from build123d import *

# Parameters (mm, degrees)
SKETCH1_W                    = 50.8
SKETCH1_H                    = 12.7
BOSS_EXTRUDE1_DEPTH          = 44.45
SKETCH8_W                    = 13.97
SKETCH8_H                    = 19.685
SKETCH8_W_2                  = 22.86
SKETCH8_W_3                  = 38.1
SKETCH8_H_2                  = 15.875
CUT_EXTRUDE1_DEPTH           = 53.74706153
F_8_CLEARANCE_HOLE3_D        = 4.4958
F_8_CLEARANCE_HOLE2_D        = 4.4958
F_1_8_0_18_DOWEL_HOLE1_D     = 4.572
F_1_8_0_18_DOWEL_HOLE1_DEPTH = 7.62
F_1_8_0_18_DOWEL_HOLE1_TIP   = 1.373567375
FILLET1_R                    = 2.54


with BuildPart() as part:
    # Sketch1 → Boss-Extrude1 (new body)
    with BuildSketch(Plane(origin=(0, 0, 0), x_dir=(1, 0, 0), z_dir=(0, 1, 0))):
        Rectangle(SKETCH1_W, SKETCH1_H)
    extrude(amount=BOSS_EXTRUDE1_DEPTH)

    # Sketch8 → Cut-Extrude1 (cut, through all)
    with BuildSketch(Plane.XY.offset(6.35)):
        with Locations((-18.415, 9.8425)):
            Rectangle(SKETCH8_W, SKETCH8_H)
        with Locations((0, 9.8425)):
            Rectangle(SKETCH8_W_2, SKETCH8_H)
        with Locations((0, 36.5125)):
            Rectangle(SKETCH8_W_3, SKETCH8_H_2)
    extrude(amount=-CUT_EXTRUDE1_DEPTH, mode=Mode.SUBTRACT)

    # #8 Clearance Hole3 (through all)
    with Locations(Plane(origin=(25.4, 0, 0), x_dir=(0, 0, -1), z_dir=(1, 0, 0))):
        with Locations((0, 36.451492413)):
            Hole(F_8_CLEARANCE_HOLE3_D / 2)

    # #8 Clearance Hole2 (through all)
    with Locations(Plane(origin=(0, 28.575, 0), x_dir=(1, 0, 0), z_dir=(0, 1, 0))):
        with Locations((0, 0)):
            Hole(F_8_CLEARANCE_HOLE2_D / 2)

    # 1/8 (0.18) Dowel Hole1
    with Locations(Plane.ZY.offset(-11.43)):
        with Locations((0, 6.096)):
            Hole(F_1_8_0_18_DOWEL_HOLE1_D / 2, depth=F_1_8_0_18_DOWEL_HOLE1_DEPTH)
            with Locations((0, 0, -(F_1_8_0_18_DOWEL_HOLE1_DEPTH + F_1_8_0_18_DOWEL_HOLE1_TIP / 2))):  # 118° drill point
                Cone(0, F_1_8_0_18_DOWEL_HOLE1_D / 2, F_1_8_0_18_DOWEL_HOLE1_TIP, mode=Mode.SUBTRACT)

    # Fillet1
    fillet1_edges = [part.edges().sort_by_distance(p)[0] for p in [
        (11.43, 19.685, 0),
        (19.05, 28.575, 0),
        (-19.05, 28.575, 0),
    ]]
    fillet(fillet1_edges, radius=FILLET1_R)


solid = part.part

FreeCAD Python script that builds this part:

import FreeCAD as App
import Part
import Sketcher
Q = App.Units.Quantity


def edges_at(feature, points):
    """Names of the edges that pass closest to the given points."""
    edges = feature.Shape.Edges
    near = lambda p: min(range(len(edges)), key=lambda i: edges[i].distToShape(Part.Vertex(*p))[0])
    return sorted({f"Edge{near(p) + 1}" for p in points})

doc = App.newDocument("Part")
body = doc.addObject("PartDesign::Body", "Body")

# Sketch on XZ plane
sketch1 = body.newObject("Sketcher::SketchObject", "Sketch")
sketch1.AttachmentSupport = (doc.getObject("XZ_Plane"), [""])
sketch1.MapMode = "FlatFace"
sketch1.addGeometry([
    Part.LineSegment(App.Vector(-25.4, -6.35, 0), App.Vector(-25.4, 6.35, 0)),
    Part.LineSegment(App.Vector(-25.4, 6.35, 0), App.Vector(25.4, 6.35, 0)),
    Part.LineSegment(App.Vector(25.4, 6.35, 0), App.Vector(25.4, -6.35, 0)),
    Part.LineSegment(App.Vector(25.4, -6.35, 0), App.Vector(-25.4, -6.35, 0)),
], False)
sketch1.addConstraint([
    Sketcher.Constraint("Coincident", 0, 2, 1, 1),
    Sketcher.Constraint("Coincident", 1, 2, 2, 1),
    Sketcher.Constraint("Coincident", 2, 2, 3, 1),
    Sketcher.Constraint("Coincident", 3, 2, 0, 1),
    Sketcher.Constraint("Vertical", 0),
    Sketcher.Constraint("Horizontal", 1),
    Sketcher.Constraint("Vertical", 2),
    Sketcher.Constraint("Horizontal", 3),
    Sketcher.Constraint("Symmetric", 0, 2, 2, 2, -1, 1),
    Sketcher.Constraint("DistanceX", 1, 1, 1, 2, Q("2 in")),
    Sketcher.Constraint("DistanceY", 0, 1, 0, 2, Q("0.5 in")),
])
pad1 = body.newObject("PartDesign::Pad", "Pad")
pad1.Profile = sketch1
pad1.Length = Q("1.75 in")
pad1.Reversed = True

# Sketch on XY plane
sketch2 = body.newObject("Sketcher::SketchObject", "Sketch001")
sketch2.AttachmentSupport = (doc.getObject("XY_Plane"), [""])
sketch2.MapMode = "FlatFace"
sketch2.AttachmentOffset = App.Placement(App.Vector(0, 0, 0.25 * 25.4), App.Rotation())
sketch2.addGeometry([
    Part.LineSegment(App.Vector(-25.4, 19.685, 0), App.Vector(-25.4, 0, 0)),  # 0
    Part.LineSegment(App.Vector(-25.4, 0, 0), App.Vector(11.43, 0, 0)),  # 1
    Part.LineSegment(App.Vector(11.43, 0, 0), App.Vector(11.43, 19.685, 0)),  # 2
    Part.LineSegment(App.Vector(11.43, 19.685, 0), App.Vector(-25.4, 19.685, 0)),  # 3
    Part.LineSegment(App.Vector(-19.05, 44.45, 0), App.Vector(-19.05, 28.575, 0)),  # 4
    Part.LineSegment(App.Vector(-19.05, 28.575, 0), App.Vector(19.05, 28.575, 0)),  # 5
    Part.LineSegment(App.Vector(19.05, 28.575, 0), App.Vector(19.05, 44.45, 0)),  # 6
    Part.LineSegment(App.Vector(19.05, 44.45, 0), App.Vector(-19.05, 44.45, 0)),  # 7
], False)
sketch2.addConstraint([
    Sketcher.Constraint("Coincident", 0, 2, 1, 1),
    Sketcher.Constraint("Coincident", 1, 2, 2, 1),
    Sketcher.Constraint("Coincident", 2, 2, 3, 1),
    Sketcher.Constraint("Coincident", 3, 2, 0, 1),
    Sketcher.Constraint("Coincident", 4, 2, 5, 1),
    Sketcher.Constraint("Coincident", 5, 2, 6, 1),
    Sketcher.Constraint("Coincident", 6, 2, 7, 1),
    Sketcher.Constraint("Coincident", 7, 2, 4, 1),
    Sketcher.Constraint("Vertical", 0),
    Sketcher.Constraint("Horizontal", 1),
    Sketcher.Constraint("Vertical", 2),
    Sketcher.Constraint("Horizontal", 3),
    Sketcher.Constraint("Vertical", 4),
    Sketcher.Constraint("Horizontal", 5),
    Sketcher.Constraint("Vertical", 6),
    Sketcher.Constraint("Horizontal", 7),
    Sketcher.Constraint("PointOnObject", 0, 2, -1),
    Sketcher.Constraint("DistanceX", 5, 1, 5, 2, Q("1.5 in")),
    Sketcher.Constraint("DistanceX", 0, 2, -1, 1, Q("1 in")),
    Sketcher.Constraint("DistanceX", 1, 1, 1, 2, Q("1.45 in")),
    Sketcher.Constraint("DistanceX", 4, 2, 2, 2, Q("1.2 in")),
    Sketcher.Constraint("DistanceY", 0, 2, 0, 1, Q("0.775 in")),
    Sketcher.Constraint("DistanceY", 4, 2, 4, 1, Q("0.625 in")),
    Sketcher.Constraint("DistanceY", -1, 1, 6, 2, Q("1.75 in")),
])
pocket1 = body.newObject("PartDesign::Pocket", "Pocket")
pocket1.Profile = sketch2
pocket1.Type = "ThroughAll"

# Sketch on YZ plane
sketch3 = body.newObject("Sketcher::SketchObject", "Sketch002")
sketch3.AttachmentSupport = (doc.getObject("YZ_Plane"), [""])
sketch3.MapMode = "FlatFace"
sketch3.AttachmentOffset = App.Placement(App.Vector(0, 0, 1 * 25.4), App.Rotation())
sketch3.addGeometry(Part.Circle(App.Vector(36.451492, 0, 0), App.Vector(0, 0, 1), 2.2479), False)
sketch3.addConstraint([
    Sketcher.Constraint("PointOnObject", 0, 3, -1),
    Sketcher.Constraint("Diameter", 0, Q("0.177 in")),
    Sketcher.Constraint("DistanceX", -1, 1, 0, 3, Q("36.451492 mm")),
])
doc.recompute()
hole = body.newObject("PartDesign::Hole", "Hole")
hole.Profile = sketch3
hole.ThreadType = "None"
hole.Diameter = Q("0.177 in")
hole.DepthType = "ThroughAll"

# Sketch on XZ plane
sketch4 = body.newObject("Sketcher::SketchObject", "Sketch003")
sketch4.AttachmentSupport = (doc.getObject("XZ_Plane"), [""])
sketch4.MapMode = "FlatFace"
sketch4.AttachmentOffset = App.Placement(App.Vector(0, 0, -1.125 * 25.4), App.Rotation())
sketch4.addGeometry(Part.Circle(App.Vector(0, 0, 0), App.Vector(0, 0, 1), 2.2479), False)
sketch4.addConstraint([
    Sketcher.Constraint("Coincident", 0, 3, -1, 1),
    Sketcher.Constraint("Diameter", 0, Q("0.177 in")),
])
doc.recompute()
hole2 = body.newObject("PartDesign::Hole", "Hole001")
hole2.Profile = sketch4
hole2.ThreadType = "None"
hole2.Diameter = Q("0.177 in")
hole2.DepthType = "ThroughAll"
hole2.Reversed = True

# Sketch on YZ plane
sketch5 = body.newObject("Sketcher::SketchObject", "Sketch004")
sketch5.AttachmentSupport = (doc.getObject("YZ_Plane"), [""])
sketch5.MapMode = "FlatFace"
sketch5.AttachmentOffset = App.Placement(App.Vector(0, 0, 0.45 * 25.4), App.Rotation())
sketch5.addGeometry(Part.Circle(App.Vector(6.096, 0, 0), App.Vector(0, 0, 1), 2.286), False)
sketch5.addConstraint([
    Sketcher.Constraint("PointOnObject", 0, 3, -1),
    Sketcher.Constraint("Diameter", 0, Q("0.18 in")),
    Sketcher.Constraint("DistanceX", -1, 1, 0, 3, Q("0.24 in")),
])
doc.recompute()
hole3 = body.newObject("PartDesign::Hole", "Hole002")
hole3.Profile = sketch5
hole3.ThreadType = "None"
hole3.Diameter = Q("0.18 in")
hole3.DepthType = "Dimension"
hole3.Depth = Q("0.3 in")
hole3.DrillPoint = "Angled"
hole3.DrillPointAngle = 118
hole3.Reversed = True
doc.recompute()

fillet = body.newObject("PartDesign::Fillet", "Fillet")
fillet.Base = (hole3, edges_at(hole3, [(11.43, 19.685, 0), (19.05, 28.575, 0), (-19.05, 28.575, 0)]))
fillet.Radius = Q("0.1 in")

doc.recompute()
